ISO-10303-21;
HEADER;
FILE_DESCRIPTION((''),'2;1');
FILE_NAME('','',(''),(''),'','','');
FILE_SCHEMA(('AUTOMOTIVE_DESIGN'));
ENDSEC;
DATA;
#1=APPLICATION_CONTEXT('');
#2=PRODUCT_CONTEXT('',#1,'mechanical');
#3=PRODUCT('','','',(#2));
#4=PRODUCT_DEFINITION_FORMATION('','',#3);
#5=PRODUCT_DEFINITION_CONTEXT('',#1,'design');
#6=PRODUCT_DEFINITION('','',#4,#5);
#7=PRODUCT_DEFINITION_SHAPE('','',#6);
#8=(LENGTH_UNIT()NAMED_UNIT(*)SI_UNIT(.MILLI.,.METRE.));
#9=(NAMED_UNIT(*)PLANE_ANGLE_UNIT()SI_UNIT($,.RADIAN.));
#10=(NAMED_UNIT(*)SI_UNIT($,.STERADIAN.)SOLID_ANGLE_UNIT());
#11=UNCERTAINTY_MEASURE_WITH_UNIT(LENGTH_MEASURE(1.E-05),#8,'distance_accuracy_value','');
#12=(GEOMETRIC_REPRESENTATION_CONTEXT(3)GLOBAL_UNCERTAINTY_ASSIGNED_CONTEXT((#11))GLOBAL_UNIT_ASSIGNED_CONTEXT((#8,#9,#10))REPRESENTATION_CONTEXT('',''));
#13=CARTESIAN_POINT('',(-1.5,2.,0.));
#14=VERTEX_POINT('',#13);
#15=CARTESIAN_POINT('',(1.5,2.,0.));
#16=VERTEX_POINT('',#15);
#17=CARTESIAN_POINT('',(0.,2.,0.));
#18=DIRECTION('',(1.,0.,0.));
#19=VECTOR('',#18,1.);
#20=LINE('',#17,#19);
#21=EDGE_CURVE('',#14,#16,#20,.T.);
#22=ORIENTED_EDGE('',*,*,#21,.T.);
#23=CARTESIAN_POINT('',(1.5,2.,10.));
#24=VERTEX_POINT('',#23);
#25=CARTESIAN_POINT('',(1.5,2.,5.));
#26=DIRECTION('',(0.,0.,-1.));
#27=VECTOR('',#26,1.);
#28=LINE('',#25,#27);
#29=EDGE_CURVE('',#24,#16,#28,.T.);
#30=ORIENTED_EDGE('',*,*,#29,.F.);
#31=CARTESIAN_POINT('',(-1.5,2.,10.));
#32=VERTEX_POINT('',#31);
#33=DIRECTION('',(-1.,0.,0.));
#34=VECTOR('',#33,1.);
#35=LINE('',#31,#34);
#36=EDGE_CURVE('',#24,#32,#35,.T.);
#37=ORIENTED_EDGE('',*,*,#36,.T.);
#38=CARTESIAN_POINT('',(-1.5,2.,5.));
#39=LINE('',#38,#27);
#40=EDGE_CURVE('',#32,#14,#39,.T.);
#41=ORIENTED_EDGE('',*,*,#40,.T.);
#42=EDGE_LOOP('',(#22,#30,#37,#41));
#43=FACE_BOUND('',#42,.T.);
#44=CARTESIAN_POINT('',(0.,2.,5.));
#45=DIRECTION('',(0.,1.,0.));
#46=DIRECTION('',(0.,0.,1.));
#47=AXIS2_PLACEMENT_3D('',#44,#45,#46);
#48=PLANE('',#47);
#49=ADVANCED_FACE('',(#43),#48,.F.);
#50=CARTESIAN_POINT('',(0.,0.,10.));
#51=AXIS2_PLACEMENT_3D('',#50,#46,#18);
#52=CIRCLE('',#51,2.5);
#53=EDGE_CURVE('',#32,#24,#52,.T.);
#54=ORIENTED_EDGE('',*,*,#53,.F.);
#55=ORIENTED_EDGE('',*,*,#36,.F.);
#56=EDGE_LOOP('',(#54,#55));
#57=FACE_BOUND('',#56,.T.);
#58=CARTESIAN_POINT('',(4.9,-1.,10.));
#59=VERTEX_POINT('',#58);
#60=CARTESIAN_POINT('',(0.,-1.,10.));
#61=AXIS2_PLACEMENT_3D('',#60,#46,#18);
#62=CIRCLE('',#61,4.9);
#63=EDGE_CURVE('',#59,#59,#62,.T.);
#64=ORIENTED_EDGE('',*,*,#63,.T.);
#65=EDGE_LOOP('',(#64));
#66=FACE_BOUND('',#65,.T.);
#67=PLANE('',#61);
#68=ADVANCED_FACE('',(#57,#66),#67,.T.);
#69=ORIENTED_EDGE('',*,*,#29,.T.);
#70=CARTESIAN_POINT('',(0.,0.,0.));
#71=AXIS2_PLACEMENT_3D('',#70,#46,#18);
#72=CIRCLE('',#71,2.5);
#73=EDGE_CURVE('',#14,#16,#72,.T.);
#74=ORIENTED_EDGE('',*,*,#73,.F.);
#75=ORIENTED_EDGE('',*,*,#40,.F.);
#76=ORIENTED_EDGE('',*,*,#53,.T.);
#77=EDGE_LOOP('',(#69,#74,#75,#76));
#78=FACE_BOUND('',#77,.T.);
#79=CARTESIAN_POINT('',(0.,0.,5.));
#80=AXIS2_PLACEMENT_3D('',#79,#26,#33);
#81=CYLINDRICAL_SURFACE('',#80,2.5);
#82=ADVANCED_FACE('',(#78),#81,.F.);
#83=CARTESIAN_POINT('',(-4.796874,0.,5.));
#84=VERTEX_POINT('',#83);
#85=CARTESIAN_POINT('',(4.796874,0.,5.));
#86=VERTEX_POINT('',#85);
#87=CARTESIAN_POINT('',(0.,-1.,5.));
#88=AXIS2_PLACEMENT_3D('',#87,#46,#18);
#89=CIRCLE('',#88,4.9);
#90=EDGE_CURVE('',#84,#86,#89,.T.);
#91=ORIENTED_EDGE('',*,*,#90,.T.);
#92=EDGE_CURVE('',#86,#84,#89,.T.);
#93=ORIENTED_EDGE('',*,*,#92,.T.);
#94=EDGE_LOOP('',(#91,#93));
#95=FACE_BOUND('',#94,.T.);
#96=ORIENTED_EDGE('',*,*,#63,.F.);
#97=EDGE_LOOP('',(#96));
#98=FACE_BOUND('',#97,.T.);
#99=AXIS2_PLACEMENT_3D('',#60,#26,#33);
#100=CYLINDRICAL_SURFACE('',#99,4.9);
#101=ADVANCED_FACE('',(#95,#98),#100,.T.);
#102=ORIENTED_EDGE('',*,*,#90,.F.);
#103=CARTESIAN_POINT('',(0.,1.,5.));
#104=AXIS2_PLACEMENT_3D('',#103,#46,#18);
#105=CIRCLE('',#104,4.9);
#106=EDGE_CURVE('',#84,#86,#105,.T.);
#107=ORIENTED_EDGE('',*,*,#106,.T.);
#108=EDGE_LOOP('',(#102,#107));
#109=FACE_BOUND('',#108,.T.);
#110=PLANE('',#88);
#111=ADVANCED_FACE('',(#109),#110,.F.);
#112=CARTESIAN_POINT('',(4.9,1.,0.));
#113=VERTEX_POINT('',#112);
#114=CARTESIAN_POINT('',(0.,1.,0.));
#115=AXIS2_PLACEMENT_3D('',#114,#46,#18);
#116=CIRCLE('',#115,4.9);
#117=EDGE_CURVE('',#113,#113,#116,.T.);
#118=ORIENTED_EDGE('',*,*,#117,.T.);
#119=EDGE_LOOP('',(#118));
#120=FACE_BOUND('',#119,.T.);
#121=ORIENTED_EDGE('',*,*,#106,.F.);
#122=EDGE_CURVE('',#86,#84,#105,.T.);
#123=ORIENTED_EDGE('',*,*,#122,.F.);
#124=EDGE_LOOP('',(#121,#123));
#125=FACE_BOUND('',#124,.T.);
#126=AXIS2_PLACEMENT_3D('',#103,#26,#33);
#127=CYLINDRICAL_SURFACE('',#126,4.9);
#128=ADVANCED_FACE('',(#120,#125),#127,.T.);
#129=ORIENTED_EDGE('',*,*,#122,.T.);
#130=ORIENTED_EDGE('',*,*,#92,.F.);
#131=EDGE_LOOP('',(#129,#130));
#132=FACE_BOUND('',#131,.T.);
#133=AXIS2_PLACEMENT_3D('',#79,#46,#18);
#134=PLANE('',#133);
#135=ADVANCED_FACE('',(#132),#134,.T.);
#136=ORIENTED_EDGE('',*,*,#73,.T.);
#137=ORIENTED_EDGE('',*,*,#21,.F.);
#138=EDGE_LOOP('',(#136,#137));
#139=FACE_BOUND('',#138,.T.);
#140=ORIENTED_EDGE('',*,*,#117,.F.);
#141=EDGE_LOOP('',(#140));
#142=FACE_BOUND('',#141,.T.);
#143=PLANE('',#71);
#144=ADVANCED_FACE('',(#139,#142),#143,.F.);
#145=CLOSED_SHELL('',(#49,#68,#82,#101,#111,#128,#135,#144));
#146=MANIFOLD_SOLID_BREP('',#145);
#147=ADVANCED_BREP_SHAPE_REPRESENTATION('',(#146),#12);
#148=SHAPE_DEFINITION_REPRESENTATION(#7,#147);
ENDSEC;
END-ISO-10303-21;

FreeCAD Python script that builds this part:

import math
import FreeCAD as App
import Part
import Sketcher
from FreeCAD import Vector
Q = App.Units.Quantity

doc = App.newDocument("Part")
params = doc.addObject("Spreadsheet::Sheet", "Params")
for row, (alias, value) in enumerate([
    ("sketch1_diameter", "9.8 mm"),
    ("sketch1_radius", "2.5 mm"),
    ("sketch1_width", "3 mm"),
    ("pad1_length", "5 mm"),
    ("sketch2_diameter", "9.8 mm"),
    ("sketch2_radius", "2.5 mm"),
    ("sketch2_width", "3 mm"),
    ("pad2_length", "5 mm"),
], start=1):
    params.set(f"A{row}", alias)
    params.set(f"B{row}", "=" + value)
    params.setAlias(f"B{row}", alias)

body = doc.addObject("PartDesign::Body", "Body")

sketch1 = body.newObject("Sketcher::SketchObject", "Sketch")
sketch1.AttachmentSupport = (doc.getObject("XY_Plane"), [""])
sketch1.MapMode = "FlatFace"
sketch1.addGeometry([
    Part.Circle(Vector(0, 1, 0), Vector(0, 0, 1), 4.9),
    Part.ArcOfCircle(Part.Circle(Vector(0, 0, 0), Vector(0, 0, 1), 2.5), math.radians(127), math.radians(413)),
    Part.LineSegment(Vector(-1.5, 2, 0), Vector(1.5, 2, 0)),
], False)
sketch1.addConstraint([
    Sketcher.Constraint("Coincident", 1, 1, 2, 1),
    Sketcher.Constraint("Coincident", 2, 2, 1, 2),
    Sketcher.Constraint("Horizontal", 2),
    Sketcher.Constraint("Coincident", 1, 3, -1, 1),
    Sketcher.Constraint("PointOnObject", 0, 3, -2),
    Sketcher.Constraint("Diameter", 0, Q("9.8 mm")),
    Sketcher.Constraint("Radius", 1, Q("2.5 mm")),
    Sketcher.Constraint("DistanceX", 2, 1, 2, 2, Q("3 mm")),
    Sketcher.Constraint("DistanceY", -1, 1, 0, 3, Q("1 mm")),
])
sketch1.setExpression("Constraints[5]", "Params.sketch1_diameter")
sketch1.setExpression("Constraints[6]", "Params.sketch1_radius")
sketch1.setExpression("Constraints[7]", "Params.sketch1_width")
pad1 = body.newObject("PartDesign::Pad", "Pad")
pad1.Profile = sketch1
pad1.setExpression("Length", "Params.pad1_length")

sketch2 = body.newObject("Sketcher::SketchObject", "Sketch001")
sketch2.AttachmentSupport = (doc.getObject("XY_Plane"), [""])
sketch2.MapMode = "FlatFace"
sketch2.AttachmentOffset = App.Placement(Vector(0, 0, 5), App.Rotation())
sketch2.addGeometry([
    Part.Circle(Vector(0, -1, 0), Vector(0, 0, 1), 4.9),
    Part.ArcOfCircle(Part.Circle(Vector(0, 0, 0), Vector(0, 0, 1), 2.5), math.radians(127), math.radians(413)),
    Part.LineSegment(Vector(-1.5, 2, 0), Vector(1.5, 2, 0)),
], False)
sketch2.addConstraint([
    Sketcher.Constraint("Coincident", 1, 1, 2, 1),
    Sketcher.Constraint("Coincident", 2, 2, 1, 2),
    Sketcher.Constraint("Horizontal", 2),
    Sketcher.Constraint("Coincident", 1, 3, -1, 1),
    Sketcher.Constraint("PointOnObject", 0, 3, -2),
    Sketcher.Constraint("Diameter", 0, Q("9.8 mm")),
    Sketcher.Constraint("Radius", 1, Q("2.5 mm")),
    Sketcher.Constraint("DistanceX", 2, 1, 2, 2, Q("3 mm")),
    Sketcher.Constraint("DistanceY", 0, 3, -1, 1, Q("1 mm")),
])
sketch2.setExpression("Constraints[5]", "Params.sketch2_diameter")
sketch2.setExpression("Constraints[6]", "Params.sketch2_radius")
sketch2.setExpression("Constraints[7]", "Params.sketch2_width")
pad2 = body.newObject("PartDesign::Pad", "Pad001")
pad2.Profile = sketch2
pad2.setExpression("Length", "Params.pad2_length")

doc.recompute()
